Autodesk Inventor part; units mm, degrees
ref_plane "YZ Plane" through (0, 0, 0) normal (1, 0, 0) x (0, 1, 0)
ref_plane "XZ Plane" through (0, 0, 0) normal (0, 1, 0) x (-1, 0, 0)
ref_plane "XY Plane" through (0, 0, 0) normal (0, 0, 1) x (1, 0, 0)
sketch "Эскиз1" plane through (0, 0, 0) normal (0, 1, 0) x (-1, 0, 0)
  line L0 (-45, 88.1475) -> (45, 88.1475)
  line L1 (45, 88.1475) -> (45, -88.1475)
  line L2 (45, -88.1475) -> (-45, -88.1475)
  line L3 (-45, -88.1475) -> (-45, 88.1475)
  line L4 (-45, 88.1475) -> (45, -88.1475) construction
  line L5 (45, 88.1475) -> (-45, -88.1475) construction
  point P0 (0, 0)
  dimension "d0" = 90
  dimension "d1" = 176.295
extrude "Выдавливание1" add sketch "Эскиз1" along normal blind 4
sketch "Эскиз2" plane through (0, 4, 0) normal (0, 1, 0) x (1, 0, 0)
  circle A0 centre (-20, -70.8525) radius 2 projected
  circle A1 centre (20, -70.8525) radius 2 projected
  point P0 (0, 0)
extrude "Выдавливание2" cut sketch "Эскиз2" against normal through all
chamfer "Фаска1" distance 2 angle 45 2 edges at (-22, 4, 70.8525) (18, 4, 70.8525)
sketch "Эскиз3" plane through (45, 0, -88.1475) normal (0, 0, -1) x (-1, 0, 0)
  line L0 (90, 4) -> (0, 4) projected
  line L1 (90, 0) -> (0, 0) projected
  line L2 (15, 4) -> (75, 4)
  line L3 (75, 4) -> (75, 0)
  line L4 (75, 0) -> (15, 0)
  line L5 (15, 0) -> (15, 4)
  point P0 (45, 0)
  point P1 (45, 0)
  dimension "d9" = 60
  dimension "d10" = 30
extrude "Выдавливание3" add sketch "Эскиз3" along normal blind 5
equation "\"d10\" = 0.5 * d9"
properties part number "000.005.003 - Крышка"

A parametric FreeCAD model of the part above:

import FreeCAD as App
import Part
import Sketcher
from FreeCAD import Vector


def edges_at(feature, points):
    """Names of the edges that pass closest to the given points."""
    edges = feature.Shape.Edges
    near = lambda p: min(range(len(edges)), key=lambda i: edges[i].distToShape(Part.Vertex(*p))[0])
    return sorted({f"Edge{near(p) + 1}" for p in points})

doc = App.newDocument("Part")
body = doc.addObject("PartDesign::Body", "Body")

sketch1 = body.newObject("Sketcher::SketchObject", "Sketch")
sketch1.AttachmentSupport = (doc.getObject("XZ_Plane"), [""])
sketch1.MapMode = "FlatFace"
sketch1.addGeometry(Part.LineSegment(Vector(-45, 88.1475, 0), Vector(45, 88.1475, 0)), False)
sketch1.addGeometry(Part.LineSegment(Vector(45, 88.1475, 0), Vector(45, -88.1475, 0)), False)
sketch1.addGeometry(Part.LineSegment(Vector(45, -88.1475, 0), Vector(-45, -88.1475, 0)), False)
sketch1.addGeometry(Part.LineSegment(Vector(-45, -88.1475, 0), Vector(-45, 88.1475, 0)), False)
sketch1.addConstraint(Sketcher.Constraint("Coincident", 0, 2, 1, 1))
sketch1.addConstraint(Sketcher.Constraint("Coincident", 1, 2, 2, 1))
sketch1.addConstraint(Sketcher.Constraint("Coincident", 2, 2, 3, 1))
sketch1.addConstraint(Sketcher.Constraint("Coincident", 3, 2, 0, 1))
sketch1.addConstraint(Sketcher.Constraint("Horizontal", 0))
sketch1.addConstraint(Sketcher.Constraint("Vertical", 1))
sketch1.addConstraint(Sketcher.Constraint("Horizontal", 2))
sketch1.addConstraint(Sketcher.Constraint("Vertical", 3))
sketch1.addConstraint(Sketcher.Constraint("Symmetric", 0, 2, 2, 2, -1, 1))
sketch1.addConstraint(Sketcher.Constraint("DistanceX", 0, 1, 0, 2, 90.0))
sketch1.addConstraint(Sketcher.Constraint("DistanceY", 1, 2, 1, 1, 176.295))
pad1 = body.newObject("PartDesign::Pad", "Pad")
pad1.Profile = sketch1
pad1.Length = 4
pad1.Reversed = True

sketch2 = body.newObject("Sketcher::SketchObject", "Sketch001")
sketch2.AttachmentSupport = (doc.getObject("XZ_Plane"), [""])
sketch2.MapMode = "FlatFace"
sketch2.AttachmentOffset = App.Placement(Vector(0, 0, -4), App.Rotation())
sketch2.addGeometry(Part.Circle(Vector(-20, 70.8525, 0), Vector(0, 0, 1), 2), False)
sketch2.addGeometry(Part.Circle(Vector(20, 70.8525, 0), Vector(0, 0, 1), 2), False)
sketch2.addConstraint(Sketcher.Constraint("Equal", 0, 1))
sketch2.addConstraint(Sketcher.Constraint("Symmetric", 0, 3, 1, 3, -2))
sketch2.addConstraint(Sketcher.Constraint("Diameter", 0, 4.0))
sketch2.addConstraint(Sketcher.Constraint("DistanceX", 0, 3, -1, 1, 20.0))
sketch2.addConstraint(Sketcher.Constraint("DistanceY", -1, 1, 0, 3, 70.8525))
pocket1 = body.newObject("PartDesign::Pocket", "Pocket")
pocket1.Profile = sketch2
pocket1.Type = "ThroughAll"
pocket1.Reversed = True
doc.recompute()

chamfer = body.newObject("PartDesign::Chamfer", "Chamfer")
chamfer.Base = (pocket1, edges_at(pocket1, [(-22, 4, 70.853), (18, 4, 70.853)]))
chamfer.Size = 2

sketch3 = body.newObject("Sketcher::SketchObject", "Sketch002")
sketch3.AttachmentSupport = (doc.getObject("XY_Plane"), [""])
sketch3.MapMode = "FlatFace"
sketch3.AttachmentOffset = App.Placement(Vector(0, 0, -88.1475), App.Rotation())
sketch3.addGeometry(Part.LineSegment(Vector(-30, 0, 0), Vector(-30, 4, 0)), False)
sketch3.addGeometry(Part.LineSegment(Vector(-30, 4, 0), Vector(30, 4, 0)), False)
sketch3.addGeometry(Part.LineSegment(Vector(30, 4, 0), Vector(30, 0, 0)), False)
sketch3.addGeometry(Part.LineSegment(Vector(30, 0, 0), Vector(-30, 0, 0)), False)
sketch3.addConstraint(Sketcher.Constraint("Coincident", 0, 2, 1, 1))
sketch3.addConstraint(Sketcher.Constraint("Coincident", 1, 2, 2, 1))
sketch3.addConstraint(Sketcher.Constraint("Coincident", 2, 2, 3, 1))
sketch3.addConstraint(Sketcher.Constraint("Coincident", 3, 2, 0, 1))
sketch3.addConstraint(Sketcher.Constraint("Vertical", 0))
sketch3.addConstraint(Sketcher.Constraint("Horizontal", 1))
sketch3.addConstraint(Sketcher.Constraint("Vertical", 2))
sketch3.addConstraint(Sketcher.Constraint("Horizontal", 3))
sketch3.addConstraint(Sketcher.Constraint("Symmetric", 2, 2, 3, 2, -1, 1))
sketch3.addConstraint(Sketcher.Constraint("DistanceX", 1, 1, 1, 2, 60.0))
sketch3.addConstraint(Sketcher.Constraint("DistanceY", 0, 1, 0, 2, 4.0))
pad2 = body.newObject("PartDesign::Pad", "Pad001")
pad2.Profile = sketch3
pad2.Length = 5
pad2.Reversed = True

doc.recompute()
